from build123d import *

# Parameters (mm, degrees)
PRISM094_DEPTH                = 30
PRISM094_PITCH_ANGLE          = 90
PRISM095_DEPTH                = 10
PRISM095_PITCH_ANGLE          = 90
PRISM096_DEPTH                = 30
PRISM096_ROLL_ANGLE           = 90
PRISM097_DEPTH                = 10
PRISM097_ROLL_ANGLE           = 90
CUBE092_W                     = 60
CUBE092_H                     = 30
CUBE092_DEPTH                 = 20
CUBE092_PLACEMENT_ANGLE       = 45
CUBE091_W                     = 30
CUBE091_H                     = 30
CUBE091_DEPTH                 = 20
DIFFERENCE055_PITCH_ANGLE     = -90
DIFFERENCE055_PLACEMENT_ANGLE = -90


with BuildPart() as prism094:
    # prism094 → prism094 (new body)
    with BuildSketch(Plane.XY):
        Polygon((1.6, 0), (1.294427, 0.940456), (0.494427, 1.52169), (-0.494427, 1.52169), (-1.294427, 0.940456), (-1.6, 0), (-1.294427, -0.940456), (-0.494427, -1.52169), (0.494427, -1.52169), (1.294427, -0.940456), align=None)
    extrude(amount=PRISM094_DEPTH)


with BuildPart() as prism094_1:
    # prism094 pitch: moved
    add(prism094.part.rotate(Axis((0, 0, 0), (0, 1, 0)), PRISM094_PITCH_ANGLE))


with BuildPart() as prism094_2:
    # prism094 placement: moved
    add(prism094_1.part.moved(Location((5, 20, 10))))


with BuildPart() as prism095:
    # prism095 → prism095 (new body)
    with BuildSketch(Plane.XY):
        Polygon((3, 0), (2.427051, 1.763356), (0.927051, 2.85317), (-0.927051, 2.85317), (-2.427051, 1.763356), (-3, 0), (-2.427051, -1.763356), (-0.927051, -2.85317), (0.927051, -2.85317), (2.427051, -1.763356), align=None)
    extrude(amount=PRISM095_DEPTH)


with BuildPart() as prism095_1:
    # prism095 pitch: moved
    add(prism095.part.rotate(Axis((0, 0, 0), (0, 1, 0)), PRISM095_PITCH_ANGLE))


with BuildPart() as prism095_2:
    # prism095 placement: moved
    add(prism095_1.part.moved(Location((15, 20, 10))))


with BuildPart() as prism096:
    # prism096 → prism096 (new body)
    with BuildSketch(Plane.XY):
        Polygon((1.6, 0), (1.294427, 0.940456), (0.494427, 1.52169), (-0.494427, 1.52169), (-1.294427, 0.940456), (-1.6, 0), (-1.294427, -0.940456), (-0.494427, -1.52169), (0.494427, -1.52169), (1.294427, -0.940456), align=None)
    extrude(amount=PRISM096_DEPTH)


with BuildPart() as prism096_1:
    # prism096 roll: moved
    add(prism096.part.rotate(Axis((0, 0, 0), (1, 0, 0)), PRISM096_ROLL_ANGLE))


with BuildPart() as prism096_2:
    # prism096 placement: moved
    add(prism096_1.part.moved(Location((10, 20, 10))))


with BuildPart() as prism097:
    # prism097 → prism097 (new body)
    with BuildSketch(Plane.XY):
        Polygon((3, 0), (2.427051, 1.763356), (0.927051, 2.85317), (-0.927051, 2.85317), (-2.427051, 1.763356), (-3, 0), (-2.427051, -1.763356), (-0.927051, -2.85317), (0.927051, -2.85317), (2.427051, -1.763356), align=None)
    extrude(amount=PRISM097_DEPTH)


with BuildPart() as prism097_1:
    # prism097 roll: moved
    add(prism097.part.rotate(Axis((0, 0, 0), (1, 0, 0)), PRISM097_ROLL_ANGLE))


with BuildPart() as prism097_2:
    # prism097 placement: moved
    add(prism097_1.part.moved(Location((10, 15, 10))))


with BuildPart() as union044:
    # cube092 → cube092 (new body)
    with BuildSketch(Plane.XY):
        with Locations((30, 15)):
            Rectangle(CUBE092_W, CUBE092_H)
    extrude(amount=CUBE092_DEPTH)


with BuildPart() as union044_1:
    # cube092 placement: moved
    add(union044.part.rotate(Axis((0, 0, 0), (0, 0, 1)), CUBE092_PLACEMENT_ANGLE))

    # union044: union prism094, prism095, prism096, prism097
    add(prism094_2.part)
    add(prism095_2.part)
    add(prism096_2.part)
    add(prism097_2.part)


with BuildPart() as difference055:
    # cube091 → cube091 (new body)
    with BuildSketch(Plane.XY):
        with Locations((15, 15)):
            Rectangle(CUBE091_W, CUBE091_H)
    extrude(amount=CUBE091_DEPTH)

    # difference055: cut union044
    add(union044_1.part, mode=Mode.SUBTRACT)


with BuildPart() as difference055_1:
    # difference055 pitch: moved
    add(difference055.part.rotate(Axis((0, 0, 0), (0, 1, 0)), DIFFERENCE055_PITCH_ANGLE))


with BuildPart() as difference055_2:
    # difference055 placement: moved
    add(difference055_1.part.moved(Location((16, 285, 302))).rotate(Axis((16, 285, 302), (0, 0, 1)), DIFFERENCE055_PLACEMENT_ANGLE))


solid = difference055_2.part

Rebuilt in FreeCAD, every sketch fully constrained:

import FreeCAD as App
import Part
import Sketcher
from FreeCAD import Vector
Q = App.Units.Quantity

doc = App.newDocument("Part")
body = doc.addObject("PartDesign::Body", "Body")

# Sketch on XY plane
sketch1 = doc.addObject("Sketcher::SketchObject", "Sketch")
body.addObject(sketch1)
sketch1.AttachmentSupport = (doc.XY_Plane, [""])
sketch1.MapMode = "FlatFace"
sketch1.addGeometry([
    Part.LineSegment(Vector(1.6, 0, 0), Vector(1.3, 0.9, 0)),  # 0
    Part.LineSegment(Vector(1.3, 0.9, 0), Vector(0.5, 1.5, 0)),  # 1
    Part.LineSegment(Vector(0.5, 1.5, 0), Vector(-0.5, 1.5, 0)),  # 2
    Part.LineSegment(Vector(-0.5, 1.5, 0), Vector(-1.3, 0.9, 0)),  # 3
    Part.LineSegment(Vector(-1.3, 0.9, 0), Vector(-1.6, 0, 0)),  # 4
    Part.LineSegment(Vector(-1.6, 0, 0), Vector(-1.3, -0.9, 0)),  # 5
    Part.LineSegment(Vector(-1.3, -0.9, 0), Vector(-0.5, -1.5, 0)),  # 6
    Part.LineSegment(Vector(-0.5, -1.5, 0), Vector(0.5, -1.5, 0)),  # 7
    Part.LineSegment(Vector(0.5, -1.5, 0), Vector(1.3, -0.9, 0)),  # 8
    Part.LineSegment(Vector(1.3, -0.9, 0), Vector(1.6, 0, 0)),  # 9
], False)
sketch1.addConstraint([
    Sketcher.Constraint("Coincident", 0, 2, 1, 1),
    Sketcher.Constraint("Coincident", 1, 2, 2, 1),
    Sketcher.Constraint("Coincident", 2, 2, 3, 1),
    Sketcher.Constraint("Coincident", 3, 2, 4, 1),
    Sketcher.Constraint("Coincident", 4, 2, 5, 1),
    Sketcher.Constraint("Coincident", 5, 2, 6, 1),
    Sketcher.Constraint("Coincident", 6, 2, 7, 1),
    Sketcher.Constraint("Coincident", 7, 2, 8, 1),
    Sketcher.Constraint("Coincident", 8, 2, 9, 1),
    Sketcher.Constraint("Coincident", 9, 2, 0, 1),
    Sketcher.Constraint("Horizontal", 2),
    Sketcher.Constraint("Horizontal", 7),
    Sketcher.Constraint("Symmetric", 0, 2, 5, 2, -1, 1),
    Sketcher.Constraint("Symmetric", 1, 2, 6, 2, -1, 1),
    Sketcher.Constraint("Symmetric", 3, 2, 8, 2, -1, 1),
    Sketcher.Constraint("Symmetric", 4, 2, 9, 2, -1, 1),
    Sketcher.Constraint("Symmetric", 0, 2, 3, 2, -2),
    Sketcher.Constraint("PointOnObject", 4, 2, -1),
    Sketcher.Constraint("Parallel", 3, 8),
    Sketcher.Constraint("Vertical", 2, 2, 6, 2),
    Sketcher.Constraint("Equal", 0, 1),
    Sketcher.Constraint("Angle", 0, Q("108.000018 deg")),
    Sketcher.Constraint("Angle", 1, Q("144.000001 deg")),
    Sketcher.Constraint("DistanceX", 4, 2, -1, 1, Q("1.6 mm")),
    Sketcher.Constraint("DistanceX", 1, 2, 0, 2, Q("0.8 mm")),
])
pad1 = doc.addObject("PartDesign::Pad", "Pad")
body.addObject(pad1)
pad1.Profile = sketch1
pad1.Length = 30
body2 = doc.addObject("PartDesign::Body", "Body001")
doc.recompute()

body.Placement = App.Placement(Vector(0, 0, 0), App.Rotation(Vector(0, 1, 0), 90))
boolean = doc.addObject("PartDesign::Boolean", "Boolean")
body2.addObject(boolean)
boolean.Type = "Fuse"
boolean.addObjects([body])
body3 = doc.addObject("PartDesign::Body", "Body002")
doc.recompute()

body2.Placement = App.Placement(Vector(5, 20, 10), App.Rotation(Vector(0, 0, 1), 0))
boolean2 = doc.addObject("PartDesign::Boolean", "Boolean001")
body3.addObject(boolean2)
boolean2.Type = "Fuse"
boolean2.addObjects([body2])
body4 = doc.addObject("PartDesign::Body", "Body003")

# Sketch on XY plane
sketch2 = doc.addObject("Sketcher::SketchObject", "Sketch001")
body4.addObject(sketch2)
sketch2.AttachmentSupport = (doc.getObject("XY_Plane003"), [""])
sketch2.MapMode = "FlatFace"
sketch2.addGeometry([
    Part.LineSegment(Vector(3, 0, 0), Vector(2.4, 1.8, 0)),  # 0
    Part.LineSegment(Vector(2.4, 1.8, 0), Vector(0.9, 2.9, 0)),  # 1
    Part.LineSegment(Vector(0.9, 2.9, 0), Vector(-0.9, 2.9, 0)),  # 2
    Part.LineSegment(Vector(-0.9, 2.9, 0), Vector(-2.4, 1.8, 0)),  # 3
    Part.LineSegment(Vector(-2.4, 1.8, 0), Vector(-3, 0, 0)),  # 4
    Part.LineSegment(Vector(-3, 0, 0), Vector(-2.4, -1.8, 0)),  # 5
    Part.LineSegment(Vector(-2.4, -1.8, 0), Vector(-0.9, -2.9, 0)),  # 6
    Part.LineSegment(Vector(-0.9, -2.9, 0), Vector(0.9, -2.9, 0)),  # 7
    Part.LineSegment(Vector(0.9, -2.9, 0), Vector(2.4, -1.8, 0)),  # 8
    Part.LineSegment(Vector(2.4, -1.8, 0), Vector(3, 0, 0)),  # 9
], False)
sketch2.addConstraint([
    Sketcher.Constraint("Coincident", 0, 2, 1, 1),
    Sketcher.Constraint("Coincident", 1, 2, 2, 1),
    Sketcher.Constraint("Coincident", 2, 2, 3, 1),
    Sketcher.Constraint("Coincident", 3, 2, 4, 1),
    Sketcher.Constraint("Coincident", 4, 2, 5, 1),
    Sketcher.Constraint("Coincident", 5, 2, 6, 1),
    Sketcher.Constraint("Coincident", 6, 2, 7, 1),
    Sketcher.Constraint("Coincident", 7, 2, 8, 1),
    Sketcher.Constraint("Coincident", 8, 2, 9, 1),
    Sketcher.Constraint("Coincident", 9, 2, 0, 1),
    Sketcher.Constraint("Horizontal", 2),
    Sketcher.Constraint("Horizontal", 7),
    Sketcher.Constraint("Symmetric", 0, 2, 5, 2, -1, 1),
    Sketcher.Constraint("Symmetric", 1, 2, 6, 2, -1, 1),
    Sketcher.Constraint("Symmetric", 3, 2, 8, 2, -1, 1),
    Sketcher.Constraint("Symmetric", 4, 2, 9, 2, -1, 1),
    Sketcher.Constraint("Symmetric", 0, 2, 3, 2, -2),
    Sketcher.Constraint("PointOnObject", 4, 2, -1),
    Sketcher.Constraint("Parallel", 3, 8),
    Sketcher.Constraint("Vertical", 2, 2, 6, 2),
    Sketcher.Constraint("Equal", 0, 1),
    Sketcher.Constraint("Angle", 0, Q("107.999997 deg")),
    Sketcher.Constraint("Angle", 1, Q("143.999995 deg")),
    Sketcher.Constraint("DistanceX", 4, 2, -1, 1, Q("3 mm")),
    Sketcher.Constraint("DistanceX", 1, 2, 0, 2, Q("1.5 mm")),
])
pad2 = doc.addObject("PartDesign::Pad", "Pad001")
body4.addObject(pad2)
pad2.Profile = sketch2
pad2.Length = 10
body5 = doc.addObject("PartDesign::Body", "Body004")
doc.recompute()

body4.Placement = App.Placement(Vector(0, 0, 0), App.Rotation(Vector(0, 1, 0), 90))
boolean3 = doc.addObject("PartDesign::Boolean", "Boolean002")
body5.addObject(boolean3)
boolean3.Type = "Fuse"
boolean3.addObjects([body4])
body6 = doc.addObject("PartDesign::Body", "Body005")
doc.recompute()

body5.Placement = App.Placement(Vector(15, 20, 10), App.Rotation(Vector(0, 0, 1), 0))
boolean4 = doc.addObject("PartDesign::Boolean", "Boolean003")
body6.addObject(boolean4)
boolean4.Type = "Fuse"
boolean4.addObjects([body5])
body7 = doc.addObject("PartDesign::Body", "Body006")

# Sketch on XY plane
sketch3 = doc.addObject("Sketcher::SketchObject", "Sketch002")
body7.addObject(sketch3)
sketch3.AttachmentSupport = (doc.getObject("XY_Plane006"), [""])
sketch3.MapMode = "FlatFace"
sketch3.addGeometry([
    Part.LineSegment(Vector(1.6, 0, 0), Vector(1.3, 0.9, 0)),  # 0
    Part.LineSegment(Vector(1.3, 0.9, 0), Vector(0.5, 1.5, 0)),  # 1
    Part.LineSegment(Vector(0.5, 1.5, 0), Vector(-0.5, 1.5, 0)),  # 2
    Part.LineSegment(Vector(-0.5, 1.5, 0), Vector(-1.3, 0.9, 0)),  # 3
    Part.LineSegment(Vector(-1.3, 0.9, 0), Vector(-1.6, 0, 0)),  # 4
    Part.LineSegment(Vector(-1.6, 0, 0), Vector(-1.3, -0.9, 0)),  # 5
    Part.LineSegment(Vector(-1.3, -0.9, 0), Vector(-0.5, -1.5, 0)),  # 6
    Part.LineSegment(Vector(-0.5, -1.5, 0), Vector(0.5, -1.5, 0)),  # 7
    Part.LineSegment(Vector(0.5, -1.5, 0), Vector(1.3, -0.9, 0)),  # 8
    Part.LineSegment(Vector(1.3, -0.9, 0), Vector(1.6, 0, 0)),  # 9
], False)
sketch3.addConstraint([
    Sketcher.Constraint("Coincident", 0, 2, 1, 1),
    Sketcher.Constraint("Coincident", 1, 2, 2, 1),
    Sketcher.Constraint("Coincident", 2, 2, 3, 1),
    Sketcher.Constraint("Coincident", 3, 2, 4, 1),
    Sketcher.Constraint("Coincident", 4, 2, 5, 1),
    Sketcher.Constraint("Coincident", 5, 2, 6, 1),
    Sketcher.Constraint("Coincident", 6, 2, 7, 1),
    Sketcher.Constraint("Coincident", 7, 2, 8, 1),
    Sketcher.Constraint("Coincident", 8, 2, 9, 1),
    Sketcher.Constraint("Coincident", 9, 2, 0, 1),
    Sketcher.Constraint("Horizontal", 2),
    Sketcher.Constraint("Horizontal", 7),
    Sketcher.Constraint("Symmetric", 0, 2, 5, 2, -1, 1),
    Sketcher.Constraint("Symmetric", 1, 2, 6, 2, -1, 1),
    Sketcher.Constraint("Symmetric", 3, 2, 8, 2, -1, 1),
    Sketcher.Constraint("Symmetric", 4, 2, 9, 2, -1, 1),
    Sketcher.Constraint("Symmetric", 0, 2, 3, 2, -2),
    Sketcher.Constraint("PointOnObject", 4, 2, -1),
    Sketcher.Constraint("Parallel", 3, 8),
    Sketcher.Constraint("Vertical", 2, 2, 6, 2),
    Sketcher.Constraint("Equal", 0, 1),
    Sketcher.Constraint("Angle", 0, Q("108.000018 deg")),
    Sketcher.Constraint("Angle", 1, Q("144.000001 deg")),
    Sketcher.Constraint("DistanceX", 4, 2, -1, 1, Q("1.6 mm")),
    Sketcher.Constraint("DistanceX", 1, 2, 0, 2, Q("0.8 mm")),
])
pad3 = doc.addObject("PartDesign::Pad", "Pad002")
body7.addObject(pad3)
pad3.Profile = sketch3
pad3.Length = 30
body8 = doc.addObject("PartDesign::Body", "Body007")
doc.recompute()

body7.Placement = App.Placement(Vector(0, 0, 0), App.Rotation(Vector(1, 0, 0), 90))
boolean5 = doc.addObject("PartDesign::Boolean", "Boolean004")
body8.addObject(boolean5)
boolean5.Type = "Fuse"
boolean5.addObjects([body7])
body9 = doc.addObject("PartDesign::Body", "Body008")
doc.recompute()

body8.Placement = App.Placement(Vector(10, 20, 10), App.Rotation(Vector(0, 0, 1), 0))
boolean6 = doc.addObject("PartDesign::Boolean", "Boolean005")
body9.addObject(boolean6)
boolean6.Type = "Fuse"
boolean6.addObjects([body8])
body10 = doc.addObject("PartDesign::Body", "Body009")

# Sketch on XY plane
sketch4 = doc.addObject("Sketcher::SketchObject", "Sketch003")
body10.addObject(sketch4)
sketch4.AttachmentSupport = (doc.getObject("XY_Plane009"), [""])
sketch4.MapMode = "FlatFace"
sketch4.addGeometry([
    Part.LineSegment(Vector(3, 0, 0), Vector(2.4, 1.8, 0)),  # 0
    Part.LineSegment(Vector(2.4, 1.8, 0), Vector(0.9, 2.9, 0)),  # 1
    Part.LineSegment(Vector(0.9, 2.9, 0), Vector(-0.9, 2.9, 0)),  # 2
    Part.LineSegment(Vector(-0.9, 2.9, 0), Vector(-2.4, 1.8, 0)),  # 3
    Part.LineSegment(Vector(-2.4, 1.8, 0), Vector(-3, 0, 0)),  # 4
    Part.LineSegment(Vector(-3, 0, 0), Vector(-2.4, -1.8, 0)),  # 5
    Part.LineSegment(Vector(-2.4, -1.8, 0), Vector(-0.9, -2.9, 0)),  # 6
    Part.LineSegment(Vector(-0.9, -2.9, 0), Vector(0.9, -2.9, 0)),  # 7
    Part.LineSegment(Vector(0.9, -2.9, 0), Vector(2.4, -1.8, 0)),  # 8
    Part.LineSegment(Vector(2.4, -1.8, 0), Vector(3, 0, 0)),  # 9
], False)
sketch4.addConstraint([
    Sketcher.Constraint("Coincident", 0, 2, 1, 1),
    Sketcher.Constraint("Coincident", 1, 2, 2, 1),
    Sketcher.Constraint("Coincident", 2, 2, 3, 1),
    Sketcher.Constraint("Coincident", 3, 2, 4, 1),
    Sketcher.Constraint("Coincident", 4, 2, 5, 1),
    Sketcher.Constraint("Coincident", 5, 2, 6, 1),
    Sketcher.Constraint("Coincident", 6, 2, 7, 1),
    Sketcher.Constraint("Coincident", 7, 2, 8, 1),
    Sketcher.Constraint("Coincident", 8, 2, 9, 1),
    Sketcher.Constraint("Coincident", 9, 2, 0, 1),
    Sketcher.Constraint("Horizontal", 2),
    Sketcher.Constraint("Horizontal", 7),
    Sketcher.Constraint("Symmetric", 0, 2, 5, 2, -1, 1),
    Sketcher.Constraint("Symmetric", 1, 2, 6, 2, -1, 1),
    Sketcher.Constraint("Symmetric", 3, 2, 8, 2, -1, 1),
    Sketcher.Constraint("Symmetric", 4, 2, 9, 2, -1, 1),
    Sketcher.Constraint("Symmetric", 0, 2, 3, 2, -2),
    Sketcher.Constraint("PointOnObject", 4, 2, -1),
    Sketcher.Constraint("Parallel", 3, 8),
    Sketcher.Constraint("Vertical", 2, 2, 6, 2),
    Sketcher.Constraint("Equal", 0, 1),
    Sketcher.Constraint("Angle", 0, Q("107.999997 deg")),
    Sketcher.Constraint("Angle", 1, Q("143.999995 deg")),
    Sketcher.Constraint("DistanceX", 4, 2, -1, 1, Q("3 mm")),
    Sketcher.Constraint("DistanceX", 1, 2, 0, 2, Q("1.5 mm")),
])
pad4 = doc.addObject("PartDesign::Pad", "Pad003")
body10.addObject(pad4)
pad4.Profile = sketch4
pad4.Length = 10
body11 = doc.addObject("PartDesign::Body", "Body010")
doc.recompute()

body10.Placement = App.Placement(Vector(0, 0, 0), App.Rotation(Vector(1, 0, 0), 90))
boolean7 = doc.addObject("PartDesign::Boolean", "Boolean006")
body11.addObject(boolean7)
boolean7.Type = "Fuse"
boolean7.addObjects([body10])
body12 = doc.addObject("PartDesign::Body", "Body011")
doc.recompute()

body11.Placement = App.Placement(Vector(10, 15, 10), App.Rotation(Vector(0, 0, 1), 0))
boolean8 = doc.addObject("PartDesign::Boolean", "Boolean007")
body12.addObject(boolean8)
boolean8.Type = "Fuse"
boolean8.addObjects([body11])
body13 = doc.addObject("PartDesign::Body", "Body012")

# Sketch on XY plane
sketch5 = doc.addObject("Sketcher::SketchObject", "Sketch004")
body13.addObject(sketch5)
sketch5.AttachmentSupport = (doc.getObject("XY_Plane012"), [""])
sketch5.MapMode = "FlatFace"
sketch5.addGeometry([
    Part.LineSegment(Vector(0, 30, 0), Vector(0, 0, 0)),
    Part.LineSegment(Vector(0, 0, 0), Vector(60, 0, 0)),
    Part.LineSegment(Vector(60, 0, 0), Vector(60, 30, 0)),
    Part.LineSegment(Vector(60, 30, 0), Vector(0, 30, 0)),
], False)
sketch5.addConstraint([
    Sketcher.Constraint("Coincident", 0, 2, 1, 1),
    Sketcher.Constraint("Coincident", 1, 2, 2, 1),
    Sketcher.Constraint("Coincident", 2, 2, 3, 1),
    Sketcher.Constraint("Coincident", 3, 2, 0, 1),
    Sketcher.Constraint("Vertical", 0),
    Sketcher.Constraint("Horizontal", 1),
    Sketcher.Constraint("Vertical", 2),
    Sketcher.Constraint("Horizontal", 3),
    Sketcher.Constraint("Coincident", 0, 2, -1, 1),
    Sketcher.Constraint("DistanceX", 1, 1, 1, 2, Q("60 mm")),
    Sketcher.Constraint("DistanceY", 0, 2, 0, 1, Q("30 mm")),
])
pad5 = doc.addObject("PartDesign::Pad", "Pad004")
body13.addObject(pad5)
pad5.Profile = sketch5
pad5.Length = 20
body14 = doc.addObject("PartDesign::Body", "Body013")
doc.recompute()

body13.Placement = App.Placement(Vector(0, 0, 0), App.Rotation(Vector(0, 0, 1), 45))
boolean9 = doc.addObject("PartDesign::Boolean", "Boolean008")
body14.addObject(boolean9)
boolean9.Type = "Fuse"
boolean9.addObjects([body13])
doc.recompute()

boolean10 = doc.addObject("PartDesign::Boolean", "Boolean009")
body14.addObject(boolean10)
boolean10.Type = "Fuse"
boolean10.addObjects([body3])
doc.recompute()

boolean11 = doc.addObject("PartDesign::Boolean", "Boolean010")
body14.addObject(boolean11)
boolean11.Type = "Fuse"
boolean11.addObjects([body6])
doc.recompute()

boolean12 = doc.addObject("PartDesign::Boolean", "Boolean011")
body14.addObject(boolean12)
boolean12.Type = "Fuse"
boolean12.addObjects([body9])
doc.recompute()

boolean13 = doc.addObject("PartDesign::Boolean", "Boolean012")
body14.addObject(boolean13)
boolean13.Type = "Fuse"
boolean13.addObjects([body12])
body15 = doc.addObject("PartDesign::Body", "Body014")

# Sketch on XY plane
sketch6 = doc.addObject("Sketcher::SketchObject", "Sketch005")
body15.addObject(sketch6)
sketch6.AttachmentSupport = (doc.getObject("XY_Plane014"), [""])
sketch6.MapMode = "FlatFace"
sketch6.addGeometry([
    Part.LineSegment(Vector(0, 30, 0), Vector(0, 0, 0)),
    Part.LineSegment(Vector(0, 0, 0), Vector(30, 0, 0)),
    Part.LineSegment(Vector(30, 0, 0), Vector(30, 30, 0)),
    Part.LineSegment(Vector(30, 30, 0), Vector(0, 30, 0)),
], False)
sketch6.addConstraint([
    Sketcher.Constraint("Coincident", 0, 2, 1, 1),
    Sketcher.Constraint("Coincident", 1, 2, 2, 1),
    Sketcher.Constraint("Coincident", 2, 2, 3, 1),
    Sketcher.Constraint("Coincident", 3, 2, 0, 1),
    Sketcher.Constraint("Vertical", 0),
    Sketcher.Constraint("Horizontal", 1),
    Sketcher.Constraint("Vertical", 2),
    Sketcher.Constraint("Horizontal", 3),
    Sketcher.Constraint("Coincident", 0, 2, -1, 1),
    Sketcher.Constraint("Equal", 3, 0),
    Sketcher.Constraint("DistanceX", 1, 1, 1, 2, Q("30 mm")),
])
pad6 = doc.addObject("PartDesign::Pad", "Pad005")
body15.addObject(pad6)
pad6.Profile = sketch6
pad6.Length = 20
doc.recompute()

boolean14 = doc.addObject("PartDesign::Boolean", "Boolean013")
body15.addObject(boolean14)
boolean14.Type = "Cut"
boolean14.addObjects([body14])
body16 = doc.addObject("PartDesign::Body", "Body015")
doc.recompute()

body15.Placement = App.Placement(Vector(0, 0, 0), App.Rotation(Vector(0, 1, 0), 270))
boolean15 = doc.addObject("PartDesign::Boolean", "Boolean014")
body16.addObject(boolean15)
boolean15.Type = "Fuse"
boolean15.addObjects([body15])
body17 = doc.addObject("PartDesign::Body", "Body016")
doc.recompute()

body16.Placement = App.Placement(Vector(16, 285, 302), App.Rotation(Vector(0, 0, 1), 270))
boolean16 = doc.addObject("PartDesign::Boolean", "Boolean015")
body17.addObject(boolean16)
boolean16.Type = "Fuse"
boolean16.addObjects([body16])

doc.recompute()
